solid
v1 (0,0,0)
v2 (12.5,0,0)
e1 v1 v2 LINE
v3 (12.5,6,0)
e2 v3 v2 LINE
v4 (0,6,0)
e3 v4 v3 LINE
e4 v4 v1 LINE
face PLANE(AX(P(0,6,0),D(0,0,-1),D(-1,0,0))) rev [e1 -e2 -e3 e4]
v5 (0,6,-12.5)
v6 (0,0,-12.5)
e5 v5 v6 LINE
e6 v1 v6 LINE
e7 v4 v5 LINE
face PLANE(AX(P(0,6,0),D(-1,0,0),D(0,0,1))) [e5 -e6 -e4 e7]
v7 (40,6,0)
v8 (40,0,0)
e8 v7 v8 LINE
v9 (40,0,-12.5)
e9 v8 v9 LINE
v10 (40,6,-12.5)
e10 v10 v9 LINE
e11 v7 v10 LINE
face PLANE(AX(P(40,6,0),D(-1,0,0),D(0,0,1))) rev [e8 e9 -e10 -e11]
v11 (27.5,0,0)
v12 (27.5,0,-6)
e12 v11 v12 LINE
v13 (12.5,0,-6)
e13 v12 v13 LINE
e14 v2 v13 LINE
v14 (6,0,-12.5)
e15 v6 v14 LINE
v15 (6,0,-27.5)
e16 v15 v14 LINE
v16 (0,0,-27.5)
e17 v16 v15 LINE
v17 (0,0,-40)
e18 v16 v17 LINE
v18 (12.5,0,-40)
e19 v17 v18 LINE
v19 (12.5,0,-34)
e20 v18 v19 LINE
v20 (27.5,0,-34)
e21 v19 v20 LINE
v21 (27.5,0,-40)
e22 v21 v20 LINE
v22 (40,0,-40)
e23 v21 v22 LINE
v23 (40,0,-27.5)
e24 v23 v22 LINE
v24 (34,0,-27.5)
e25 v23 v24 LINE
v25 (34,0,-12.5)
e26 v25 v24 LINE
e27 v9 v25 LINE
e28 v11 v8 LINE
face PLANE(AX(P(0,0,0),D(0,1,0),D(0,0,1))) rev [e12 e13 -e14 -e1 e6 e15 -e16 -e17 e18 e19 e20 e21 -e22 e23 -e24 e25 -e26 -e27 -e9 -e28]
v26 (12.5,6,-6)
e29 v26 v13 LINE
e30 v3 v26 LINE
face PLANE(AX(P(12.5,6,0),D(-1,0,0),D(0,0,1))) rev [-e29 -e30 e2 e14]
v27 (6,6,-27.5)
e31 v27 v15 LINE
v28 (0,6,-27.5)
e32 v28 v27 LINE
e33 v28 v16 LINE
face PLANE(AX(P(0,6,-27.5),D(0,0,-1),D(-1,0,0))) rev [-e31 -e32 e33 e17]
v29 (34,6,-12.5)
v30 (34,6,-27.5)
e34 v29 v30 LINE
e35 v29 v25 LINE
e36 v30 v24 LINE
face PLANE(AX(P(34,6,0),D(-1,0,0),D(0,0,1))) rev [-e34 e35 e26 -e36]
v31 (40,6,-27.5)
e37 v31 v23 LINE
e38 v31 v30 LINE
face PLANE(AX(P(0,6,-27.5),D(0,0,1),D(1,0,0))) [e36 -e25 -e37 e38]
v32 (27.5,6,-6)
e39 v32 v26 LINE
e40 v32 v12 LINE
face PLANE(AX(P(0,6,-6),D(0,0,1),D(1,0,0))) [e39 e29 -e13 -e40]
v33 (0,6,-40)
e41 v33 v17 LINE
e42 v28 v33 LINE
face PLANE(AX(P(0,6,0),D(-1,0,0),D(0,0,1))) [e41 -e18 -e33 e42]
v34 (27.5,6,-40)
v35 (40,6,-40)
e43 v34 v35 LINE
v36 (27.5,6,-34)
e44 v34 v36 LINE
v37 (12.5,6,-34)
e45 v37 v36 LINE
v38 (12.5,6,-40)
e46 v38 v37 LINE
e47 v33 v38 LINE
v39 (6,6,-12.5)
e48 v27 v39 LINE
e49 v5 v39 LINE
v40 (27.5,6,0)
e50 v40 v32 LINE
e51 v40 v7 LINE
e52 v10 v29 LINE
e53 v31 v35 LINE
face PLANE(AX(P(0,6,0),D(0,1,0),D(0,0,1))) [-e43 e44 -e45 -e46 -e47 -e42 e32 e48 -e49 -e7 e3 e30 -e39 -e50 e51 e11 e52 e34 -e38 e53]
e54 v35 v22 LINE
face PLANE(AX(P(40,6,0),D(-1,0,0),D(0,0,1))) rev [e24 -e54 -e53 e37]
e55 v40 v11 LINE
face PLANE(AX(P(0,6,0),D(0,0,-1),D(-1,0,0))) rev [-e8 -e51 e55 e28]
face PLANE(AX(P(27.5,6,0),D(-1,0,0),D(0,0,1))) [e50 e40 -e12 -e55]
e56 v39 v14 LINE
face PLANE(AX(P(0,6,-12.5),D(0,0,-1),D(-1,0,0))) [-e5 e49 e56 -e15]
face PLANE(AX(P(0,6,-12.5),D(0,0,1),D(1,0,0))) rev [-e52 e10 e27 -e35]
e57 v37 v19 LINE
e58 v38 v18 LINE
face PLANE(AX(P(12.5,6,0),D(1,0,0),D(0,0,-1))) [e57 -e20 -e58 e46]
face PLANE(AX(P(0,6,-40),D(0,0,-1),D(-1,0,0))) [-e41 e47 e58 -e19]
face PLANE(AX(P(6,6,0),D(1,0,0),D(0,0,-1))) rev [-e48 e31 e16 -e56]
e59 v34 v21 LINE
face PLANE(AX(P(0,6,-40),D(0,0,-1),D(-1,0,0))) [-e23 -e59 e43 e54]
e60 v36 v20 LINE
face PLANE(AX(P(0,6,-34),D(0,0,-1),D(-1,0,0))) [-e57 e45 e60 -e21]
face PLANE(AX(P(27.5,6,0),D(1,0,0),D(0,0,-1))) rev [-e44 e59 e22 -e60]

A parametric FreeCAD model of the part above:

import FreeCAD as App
import Part
import Sketcher
Q = App.Units.Quantity


def add_polygon(sketch, points):
    """Adds a closed chain of lines whose ends are joined by coincident constraints."""
    first, n = sketch.GeometryCount, len(points)
    for a, b in zip(points, points[1:] + points[:1]):
        sketch.addGeometry(Part.LineSegment(App.Vector(*a, 0), App.Vector(*b, 0)), False)
    for i in range(n):
        sketch.addConstraint(Sketcher.Constraint("Coincident", first + i, 2, first + (i + 1) % n, 1))

doc = App.newDocument("Part")
body = doc.addObject("PartDesign::Body", "Body")

# Sketch on XZ plane
sketch1 = doc.addObject("Sketcher::SketchObject", "Sketch")
body.addObject(sketch1)
sketch1.AttachmentSupport = (doc.XZ_Plane, [""])
sketch1.MapMode = "FlatFace"
add_polygon(sketch1, [(0, -12), (0, 0), (12, 0), (12, -6), (28, -6), (28, 0), (40, 0), (40, -12), (34, -12), (34, -28), (40, -28), (40, -40), (28, -40), (28, -34), (12, -34), (12, -40), (0, -40), (0, -28), (6, -28), (6, -12)])  # lines 0-19
sketch1.addConstraint(Sketcher.Constraint("Vertical", 0))
sketch1.addConstraint(Sketcher.Constraint("Horizontal", 1))
sketch1.addConstraint(Sketcher.Constraint("Vertical", 2))
sketch1.addConstraint(Sketcher.Constraint("Horizontal", 3))
sketch1.addConstraint(Sketcher.Constraint("Vertical", 4))
sketch1.addConstraint(Sketcher.Constraint("Horizontal", 5))
sketch1.addConstraint(Sketcher.Constraint("Vertical", 6))
sketch1.addConstraint(Sketcher.Constraint("Horizontal", 7))
sketch1.addConstraint(Sketcher.Constraint("Vertical", 8))
sketch1.addConstraint(Sketcher.Constraint("Horizontal", 9))
sketch1.addConstraint(Sketcher.Constraint("Vertical", 10))
sketch1.addConstraint(Sketcher.Constraint("Horizontal", 11))
sketch1.addConstraint(Sketcher.Constraint("Vertical", 12))
sketch1.addConstraint(Sketcher.Constraint("Horizontal", 13))
sketch1.addConstraint(Sketcher.Constraint("Vertical", 14))
sketch1.addConstraint(Sketcher.Constraint("Horizontal", 15))
sketch1.addConstraint(Sketcher.Constraint("Vertical", 16))
sketch1.addConstraint(Sketcher.Constraint("Horizontal", 17))
sketch1.addConstraint(Sketcher.Constraint("Vertical", 18))
sketch1.addConstraint(Sketcher.Constraint("Horizontal", 19))
sketch1.addConstraint(Sketcher.Constraint("Coincident", 0, 2, -1, 1))
sketch1.addConstraint(Sketcher.Constraint("PointOnObject", 4, 2, -1))
sketch1.addConstraint(Sketcher.Constraint("PointOnObject", 15, 2, -2))
sketch1.addConstraint(Sketcher.Constraint("Horizontal", 11, 2, 14, 2))
sketch1.addConstraint(Sketcher.Constraint("Horizontal", 9, 2, 16, 2))
sketch1.addConstraint(Sketcher.Constraint("Horizontal", 7, 2, 18, 2))
sketch1.addConstraint(Sketcher.Constraint("Vertical", 6, 2, 9, 2))
sketch1.addConstraint(Sketcher.Constraint("Vertical", 4, 2, 11, 2))
sketch1.addConstraint(Sketcher.Constraint("Vertical", 2, 2, 13, 2))
sketch1.addConstraint(Sketcher.Constraint("Equal", 1, 5))
sketch1.addConstraint(Sketcher.Constraint("Equal", 9, 17))
sketch1.addConstraint(Sketcher.Constraint("Equal", 15, 0))
sketch1.addConstraint(Sketcher.Constraint("Equal", 19, 2))
sketch1.addConstraint(Sketcher.Constraint("Equal", 13, 8))
sketch1.addConstraint(Sketcher.Constraint("Equal", 6, 10))
sketch1.addConstraint(Sketcher.Constraint("Equal", 4, 12))
sketch1.addConstraint(Sketcher.Constraint("DistanceX", 3, 1, 3, 2, Q("15 mm")))
sketch1.addConstraint(Sketcher.Constraint("DistanceX", 7, 2, 7, 1, Q("6 mm")))
sketch1.addConstraint(Sketcher.Constraint("DistanceX", 1, 1, 1, 2, Q("12.5 mm")))
pad1 = doc.addObject("PartDesign::Pad", "Pad")
body.addObject(pad1)
pad1.Profile = sketch1
pad1.Length = 6
pad1.Reversed = True

doc.recompute()
